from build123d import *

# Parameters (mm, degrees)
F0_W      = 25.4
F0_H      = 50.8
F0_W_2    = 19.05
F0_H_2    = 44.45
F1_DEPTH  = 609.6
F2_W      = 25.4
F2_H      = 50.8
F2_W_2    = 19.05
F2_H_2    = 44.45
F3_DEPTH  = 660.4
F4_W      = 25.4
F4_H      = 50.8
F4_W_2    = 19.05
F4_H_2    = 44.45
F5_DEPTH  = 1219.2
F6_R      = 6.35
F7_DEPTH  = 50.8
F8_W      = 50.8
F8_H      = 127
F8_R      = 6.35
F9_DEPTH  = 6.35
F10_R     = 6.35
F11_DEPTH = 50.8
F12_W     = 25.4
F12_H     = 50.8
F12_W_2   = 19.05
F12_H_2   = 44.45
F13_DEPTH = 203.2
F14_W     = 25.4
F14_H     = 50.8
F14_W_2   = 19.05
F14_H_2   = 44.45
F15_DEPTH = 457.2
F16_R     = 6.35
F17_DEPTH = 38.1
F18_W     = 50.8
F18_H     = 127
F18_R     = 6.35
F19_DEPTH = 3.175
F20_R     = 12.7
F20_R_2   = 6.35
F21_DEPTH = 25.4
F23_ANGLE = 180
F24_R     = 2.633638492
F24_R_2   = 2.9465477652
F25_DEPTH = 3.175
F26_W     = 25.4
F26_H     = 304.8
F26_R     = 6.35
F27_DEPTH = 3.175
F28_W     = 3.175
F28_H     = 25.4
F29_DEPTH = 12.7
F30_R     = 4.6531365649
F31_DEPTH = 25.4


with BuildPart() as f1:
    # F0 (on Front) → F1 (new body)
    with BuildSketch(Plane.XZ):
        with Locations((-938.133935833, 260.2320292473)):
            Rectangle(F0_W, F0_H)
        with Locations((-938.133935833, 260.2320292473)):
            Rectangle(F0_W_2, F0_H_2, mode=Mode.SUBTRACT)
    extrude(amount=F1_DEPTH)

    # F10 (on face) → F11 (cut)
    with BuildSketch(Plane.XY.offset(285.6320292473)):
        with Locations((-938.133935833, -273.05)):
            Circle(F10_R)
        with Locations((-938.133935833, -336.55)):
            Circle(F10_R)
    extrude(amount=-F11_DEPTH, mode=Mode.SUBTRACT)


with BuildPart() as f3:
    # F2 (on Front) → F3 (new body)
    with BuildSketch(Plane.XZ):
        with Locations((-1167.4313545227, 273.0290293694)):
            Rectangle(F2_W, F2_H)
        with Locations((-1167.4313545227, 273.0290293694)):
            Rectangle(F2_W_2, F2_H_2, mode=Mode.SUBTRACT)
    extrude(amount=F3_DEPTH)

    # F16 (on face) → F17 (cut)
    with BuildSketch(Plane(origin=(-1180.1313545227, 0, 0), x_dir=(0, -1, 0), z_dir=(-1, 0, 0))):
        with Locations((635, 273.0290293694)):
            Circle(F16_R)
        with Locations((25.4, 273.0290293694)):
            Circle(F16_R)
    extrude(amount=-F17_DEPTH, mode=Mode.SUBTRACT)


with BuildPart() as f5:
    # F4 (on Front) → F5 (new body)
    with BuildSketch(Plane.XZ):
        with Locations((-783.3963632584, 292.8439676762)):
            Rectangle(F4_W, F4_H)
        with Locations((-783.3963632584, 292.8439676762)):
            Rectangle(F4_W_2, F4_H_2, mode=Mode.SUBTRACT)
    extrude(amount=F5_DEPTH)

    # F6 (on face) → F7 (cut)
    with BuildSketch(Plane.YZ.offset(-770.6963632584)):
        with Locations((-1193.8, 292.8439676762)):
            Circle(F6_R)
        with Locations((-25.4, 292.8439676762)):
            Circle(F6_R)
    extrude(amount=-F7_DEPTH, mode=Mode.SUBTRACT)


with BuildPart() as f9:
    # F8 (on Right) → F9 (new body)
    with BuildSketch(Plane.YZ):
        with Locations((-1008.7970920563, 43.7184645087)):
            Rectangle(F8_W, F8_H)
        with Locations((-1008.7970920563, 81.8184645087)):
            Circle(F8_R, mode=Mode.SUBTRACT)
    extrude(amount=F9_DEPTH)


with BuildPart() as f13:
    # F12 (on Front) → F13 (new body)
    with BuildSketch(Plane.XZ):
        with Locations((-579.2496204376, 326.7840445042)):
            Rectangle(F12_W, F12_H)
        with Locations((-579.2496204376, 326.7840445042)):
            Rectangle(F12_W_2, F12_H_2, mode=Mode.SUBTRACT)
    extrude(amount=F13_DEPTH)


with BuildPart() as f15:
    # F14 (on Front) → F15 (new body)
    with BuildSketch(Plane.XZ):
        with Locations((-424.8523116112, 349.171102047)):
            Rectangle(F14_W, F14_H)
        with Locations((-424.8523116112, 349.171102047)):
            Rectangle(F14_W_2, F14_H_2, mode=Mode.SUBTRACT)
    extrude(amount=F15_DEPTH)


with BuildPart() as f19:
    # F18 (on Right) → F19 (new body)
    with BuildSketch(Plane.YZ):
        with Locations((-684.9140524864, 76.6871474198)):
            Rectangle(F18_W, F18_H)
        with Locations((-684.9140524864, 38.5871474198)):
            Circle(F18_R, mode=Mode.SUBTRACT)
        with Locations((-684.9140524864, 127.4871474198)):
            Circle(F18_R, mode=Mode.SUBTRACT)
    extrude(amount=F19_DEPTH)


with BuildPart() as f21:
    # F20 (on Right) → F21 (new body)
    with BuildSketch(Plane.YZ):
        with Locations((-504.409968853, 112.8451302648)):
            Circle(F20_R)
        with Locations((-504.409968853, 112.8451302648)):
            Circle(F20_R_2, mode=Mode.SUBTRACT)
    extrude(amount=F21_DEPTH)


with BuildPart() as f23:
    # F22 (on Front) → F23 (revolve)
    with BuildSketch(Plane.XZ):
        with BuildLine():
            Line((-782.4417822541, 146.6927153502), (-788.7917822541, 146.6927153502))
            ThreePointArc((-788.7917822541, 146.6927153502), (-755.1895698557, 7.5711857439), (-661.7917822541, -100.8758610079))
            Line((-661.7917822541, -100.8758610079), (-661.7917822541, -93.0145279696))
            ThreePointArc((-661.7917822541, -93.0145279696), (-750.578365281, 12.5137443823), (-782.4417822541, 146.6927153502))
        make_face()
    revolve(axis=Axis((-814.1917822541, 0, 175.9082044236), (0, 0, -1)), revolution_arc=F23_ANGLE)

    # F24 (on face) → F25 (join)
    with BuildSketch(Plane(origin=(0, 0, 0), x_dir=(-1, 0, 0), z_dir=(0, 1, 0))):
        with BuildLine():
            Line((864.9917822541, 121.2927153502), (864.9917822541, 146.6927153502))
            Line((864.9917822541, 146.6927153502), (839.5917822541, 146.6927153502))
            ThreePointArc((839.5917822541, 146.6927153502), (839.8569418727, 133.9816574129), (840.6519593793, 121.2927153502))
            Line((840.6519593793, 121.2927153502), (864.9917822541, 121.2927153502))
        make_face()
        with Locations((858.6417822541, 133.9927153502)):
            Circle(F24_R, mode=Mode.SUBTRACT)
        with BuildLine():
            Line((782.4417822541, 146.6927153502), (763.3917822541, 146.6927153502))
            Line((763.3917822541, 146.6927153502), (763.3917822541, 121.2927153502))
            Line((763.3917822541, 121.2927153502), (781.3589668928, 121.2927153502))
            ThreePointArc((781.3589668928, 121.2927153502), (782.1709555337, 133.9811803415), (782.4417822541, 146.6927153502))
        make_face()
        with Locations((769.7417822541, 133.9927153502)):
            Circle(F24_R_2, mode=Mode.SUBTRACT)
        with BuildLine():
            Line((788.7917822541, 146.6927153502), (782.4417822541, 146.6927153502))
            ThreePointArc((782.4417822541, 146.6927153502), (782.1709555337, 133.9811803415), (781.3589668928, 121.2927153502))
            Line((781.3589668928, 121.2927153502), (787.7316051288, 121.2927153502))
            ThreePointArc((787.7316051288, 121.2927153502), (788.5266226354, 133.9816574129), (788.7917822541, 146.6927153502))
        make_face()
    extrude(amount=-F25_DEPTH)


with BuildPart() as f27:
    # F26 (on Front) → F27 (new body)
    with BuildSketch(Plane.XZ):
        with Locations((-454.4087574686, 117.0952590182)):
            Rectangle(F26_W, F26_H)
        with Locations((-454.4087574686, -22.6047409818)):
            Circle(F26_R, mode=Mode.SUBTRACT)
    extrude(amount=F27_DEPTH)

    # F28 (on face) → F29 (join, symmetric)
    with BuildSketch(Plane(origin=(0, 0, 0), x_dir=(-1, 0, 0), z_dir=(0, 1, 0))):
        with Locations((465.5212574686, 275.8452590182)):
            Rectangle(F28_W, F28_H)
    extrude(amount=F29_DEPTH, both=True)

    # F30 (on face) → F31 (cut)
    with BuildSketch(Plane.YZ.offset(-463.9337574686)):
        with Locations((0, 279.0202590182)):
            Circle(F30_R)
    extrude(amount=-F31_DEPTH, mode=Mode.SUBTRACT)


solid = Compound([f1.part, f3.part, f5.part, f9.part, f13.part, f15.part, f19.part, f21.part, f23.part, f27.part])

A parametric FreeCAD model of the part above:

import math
import FreeCAD as App
import Part
import Sketcher

V = App.Vector
Q = App.Units.Quantity

doc = App.newDocument("Part")
body = doc.addObject("PartDesign::Body", "Body")

sketch1 = doc.addObject("Sketcher::SketchObject", "Sketch")
body.addObject(sketch1)
sketch1.AttachmentSupport = (doc.XZ_Plane, [""])
sketch1.MapMode = "FlatFace"
sketch1.addGeometry(Part.LineSegment(V(-950.833936, 285.632029, 0), V(-950.833936, 234.832029, 0)), False)
sketch1.addGeometry(Part.LineSegment(V(-950.833936, 234.832029, 0), V(-925.433936, 234.832029, 0)), False)
sketch1.addGeometry(Part.LineSegment(V(-925.433936, 234.832029, 0), V(-925.433936, 285.632029, 0)), False)
sketch1.addGeometry(Part.LineSegment(V(-925.433936, 285.632029, 0), V(-950.833936, 285.632029, 0)), False)
sketch1.addGeometry(Part.LineSegment(V(-928.608936, 238.007029, 0), V(-947.658936, 238.007029, 0)), False)
sketch1.addGeometry(Part.LineSegment(V(-947.658936, 238.007029, 0), V(-947.658936, 282.457029, 0)), False)
sketch1.addGeometry(Part.LineSegment(V(-947.658936, 282.457029, 0), V(-928.608936, 282.457029, 0)), False)
sketch1.addGeometry(Part.LineSegment(V(-928.608936, 282.457029, 0), V(-928.608936, 238.007029, 0)), False)
sketch1.addConstraint(Sketcher.Constraint("Coincident", 0, 2, 1, 1))
sketch1.addConstraint(Sketcher.Constraint("Coincident", 1, 2, 2, 1))
sketch1.addConstraint(Sketcher.Constraint("Coincident", 2, 2, 3, 1))
sketch1.addConstraint(Sketcher.Constraint("Coincident", 3, 2, 0, 1))
sketch1.addConstraint(Sketcher.Constraint("Coincident", 4, 2, 5, 1))
sketch1.addConstraint(Sketcher.Constraint("Coincident", 5, 2, 6, 1))
sketch1.addConstraint(Sketcher.Constraint("Coincident", 6, 2, 7, 1))
sketch1.addConstraint(Sketcher.Constraint("Coincident", 7, 2, 4, 1))
sketch1.addConstraint(Sketcher.Constraint("Vertical", 0))
sketch1.addConstraint(Sketcher.Constraint("Horizontal", 1))
sketch1.addConstraint(Sketcher.Constraint("Vertical", 2))
sketch1.addConstraint(Sketcher.Constraint("Horizontal", 3))
sketch1.addConstraint(Sketcher.Constraint("Horizontal", 4))
sketch1.addConstraint(Sketcher.Constraint("Vertical", 5))
sketch1.addConstraint(Sketcher.Constraint("Horizontal", 6))
sketch1.addConstraint(Sketcher.Constraint("Vertical", 7))
sketch1.addConstraint(Sketcher.Constraint("DistanceX", 1, 1, 1, 2, Q("1 in")))
sketch1.addConstraint(Sketcher.Constraint("DistanceY", 0, 2, 0, 1, Q("2 in")))
sketch1.addConstraint(Sketcher.Constraint("DistanceX", 4, 2, 4, 1, Q("0.75 in")))
sketch1.addConstraint(Sketcher.Constraint("DistanceY", 5, 1, 5, 2, Q("1.75 in")))
sketch1.addConstraint(Sketcher.Constraint("DistanceX", 0, 2, 4, 2, Q("0.125 in")))
sketch1.addConstraint(Sketcher.Constraint("DistanceY", 0, 2, 4, 2, Q("0.125 in")))
sketch1.addConstraint(Sketcher.Constraint("DistanceY", -1, 1, 0, 2, 234.832029))
sketch1.addConstraint(Sketcher.Constraint("DistanceX", 0, 2, -1, 1, 950.833936))
pad1 = doc.addObject("PartDesign::Pad", "Pad")
body.addObject(pad1)
pad1.Profile = sketch1
pad1.Length = Q("24 in")

sketch2 = doc.addObject("Sketcher::SketchObject", "Sketch001")
body.addObject(sketch2)
sketch2.AttachmentSupport = (doc.XY_Plane, [""])
sketch2.MapMode = "FlatFace"
sketch2.AttachmentOffset = App.Placement(V(0, 0, 285.632029), App.Rotation())
sketch2.addGeometry(Part.Circle(V(-938.133936, -273.05, 0), V(0, 0, 1), 6.35), False)
sketch2.addGeometry(Part.Circle(V(-938.133936, -336.55, 0), V(0, 0, 1), 6.35), False)
sketch2.addConstraint(Sketcher.Constraint("Equal", 0, 1))
sketch2.addConstraint(Sketcher.Constraint("Vertical", 0, 3, 1, 3))
sketch2.addConstraint(Sketcher.Constraint("Diameter", 0, Q("0.5 in")))
sketch2.addConstraint(Sketcher.Constraint("DistanceY", 1, 3, 0, 3, Q("2.5 in")))
sketch2.addConstraint(Sketcher.Constraint("DistanceY", 0, 3, -1, 1, Q("10.75 in")))
sketch2.addConstraint(Sketcher.Constraint("DistanceX", 0, 3, -1, 1, 938.133936))
pocket1 = doc.addObject("PartDesign::Pocket", "Pocket")
body.addObject(pocket1)
pocket1.Profile = sketch2
pocket1.Length = Q("2 in")
body2 = doc.addObject("PartDesign::Body", "Body001")

sketch3 = doc.addObject("Sketcher::SketchObject", "Sketch002")
body2.addObject(sketch3)
sketch3.AttachmentSupport = (doc.getObject("XZ_Plane001"), [""])
sketch3.MapMode = "FlatFace"
sketch3.addGeometry(Part.LineSegment(V(-1180.131355, 298.429029, 0), V(-1180.131355, 247.629029, 0)), False)
sketch3.addGeometry(Part.LineSegment(V(-1180.131355, 247.629029, 0), V(-1154.731355, 247.629029, 0)), False)
sketch3.addGeometry(Part.LineSegment(V(-1154.731355, 247.629029, 0), V(-1154.731355, 298.429029, 0)), False)
sketch3.addGeometry(Part.LineSegment(V(-1154.731355, 298.429029, 0), V(-1180.131355, 298.429029, 0)), False)
sketch3.addGeometry(Part.LineSegment(V(-1157.906355, 250.804029, 0), V(-1176.956355, 250.804029, 0)), False)
sketch3.addGeometry(Part.LineSegment(V(-1176.956355, 250.804029, 0), V(-1176.956355, 295.254029, 0)), False)
sketch3.addGeometry(Part.LineSegment(V(-1176.956355, 295.254029, 0), V(-1157.906355, 295.254029, 0)), False)
sketch3.addGeometry(Part.LineSegment(V(-1157.906355, 295.254029, 0), V(-1157.906355, 250.804029, 0)), False)
sketch3.addConstraint(Sketcher.Constraint("Coincident", 0, 2, 1, 1))
sketch3.addConstraint(Sketcher.Constraint("Coincident", 1, 2, 2, 1))
sketch3.addConstraint(Sketcher.Constraint("Coincident", 2, 2, 3, 1))
sketch3.addConstraint(Sketcher.Constraint("Coincident", 3, 2, 0, 1))
sketch3.addConstraint(Sketcher.Constraint("Coincident", 4, 2, 5, 1))
sketch3.addConstraint(Sketcher.Constraint("Coincident", 5, 2, 6, 1))
sketch3.addConstraint(Sketcher.Constraint("Coincident", 6, 2, 7, 1))
sketch3.addConstraint(Sketcher.Constraint("Coincident", 7, 2, 4, 1))
sketch3.addConstraint(Sketcher.Constraint("Vertical", 0))
sketch3.addConstraint(Sketcher.Constraint("Horizontal", 1))
sketch3.addConstraint(Sketcher.Constraint("Vertical", 2))
sketch3.addConstraint(Sketcher.Constraint("Horizontal", 3))
sketch3.addConstraint(Sketcher.Constraint("Horizontal", 4))
sketch3.addConstraint(Sketcher.Constraint("Vertical", 5))
sketch3.addConstraint(Sketcher.Constraint("Horizontal", 6))
sketch3.addConstraint(Sketcher.Constraint("Vertical", 7))
sketch3.addConstraint(Sketcher.Constraint("DistanceX", 1, 1, 1, 2, Q("1 in")))
sketch3.addConstraint(Sketcher.Constraint("DistanceY", 0, 2, 0, 1, Q("2 in")))
sketch3.addConstraint(Sketcher.Constraint("DistanceX", 4, 2, 4, 1, Q("0.75 in")))
sketch3.addConstraint(Sketcher.Constraint("DistanceY", 5, 1, 5, 2, Q("1.75 in")))
sketch3.addConstraint(Sketcher.Constraint("DistanceX", 0, 2, 4, 2, Q("0.125 in")))
sketch3.addConstraint(Sketcher.Constraint("DistanceY", 0, 2, 4, 2, Q("0.125 in")))
sketch3.addConstraint(Sketcher.Constraint("DistanceY", -1, 1, 0, 2, 247.629029))
sketch3.addConstraint(Sketcher.Constraint("DistanceX", 0, 2, -1, 1, 1180.131355))
pad2 = doc.addObject("PartDesign::Pad", "Pad001")
body2.addObject(pad2)
pad2.Profile = sketch3
pad2.Length = Q("26 in")

sketch4 = doc.addObject("Sketcher::SketchObject", "Sketch003")
body2.addObject(sketch4)
sketch4.AttachmentSupport = (doc.getObject("YZ_Plane001"), [""])
sketch4.MapMode = "FlatFace"
sketch4.AttachmentOffset = App.Placement(V(0, 0, -1180.131355), App.Rotation())
sketch4.addGeometry(Part.Circle(V(-635, 273.029029, 0), V(0, 0, 1), 6.35), False)
sketch4.addGeometry(Part.Circle(V(-25.4, 273.029029, 0), V(0, 0, 1), 6.35), False)
sketch4.addConstraint(Sketcher.Constraint("Equal", 0, 1))
sketch4.addConstraint(Sketcher.Constraint("Horizontal", 0, 3, 1, 3))
sketch4.addConstraint(Sketcher.Constraint("Diameter", 0, Q("0.5 in")))
sketch4.addConstraint(Sketcher.Constraint("DistanceX", 0, 3, -1, 1, Q("25 in")))
sketch4.addConstraint(Sketcher.Constraint("DistanceX", 1, 3, -1, 1, Q("1 in")))
sketch4.addConstraint(Sketcher.Constraint("DistanceY", -1, 1, 0, 3, 273.029029))
pocket2 = doc.addObject("PartDesign::Pocket", "Pocket001")
body2.addObject(pocket2)
pocket2.Profile = sketch4
pocket2.Length = Q("1.5 in")
pocket2.Reversed = True
body3 = doc.addObject("PartDesign::Body", "Body002")

sketch5 = doc.addObject("Sketcher::SketchObject", "Sketch004")
body3.addObject(sketch5)
sketch5.AttachmentSupport = (doc.getObject("XZ_Plane002"), [""])
sketch5.MapMode = "FlatFace"
sketch5.addGeometry(Part.LineSegment(V(-796.096363, 318.243968, 0), V(-796.096363, 267.443968, 0)), False)
sketch5.addGeometry(Part.LineSegment(V(-796.096363, 267.443968, 0), V(-770.696363, 267.443968, 0)), False)
sketch5.addGeometry(Part.LineSegment(V(-770.696363, 267.443968, 0), V(-770.696363, 318.243968, 0)), False)
sketch5.addGeometry(Part.LineSegment(V(-770.696363, 318.243968, 0), V(-796.096363, 318.243968, 0)), False)
sketch5.addGeometry(Part.LineSegment(V(-773.871363, 270.618968, 0), V(-792.921363, 270.618968, 0)), False)
sketch5.addGeometry(Part.LineSegment(V(-792.921363, 270.618968, 0), V(-792.921363, 315.068968, 0)), False)
sketch5.addGeometry(Part.LineSegment(V(-792.921363, 315.068968, 0), V(-773.871363, 315.068968, 0)), False)
sketch5.addGeometry(Part.LineSegment(V(-773.871363, 315.068968, 0), V(-773.871363, 270.618968, 0)), False)
sketch5.addConstraint(Sketcher.Constraint("Coincident", 0, 2, 1, 1))
sketch5.addConstraint(Sketcher.Constraint("Coincident", 1, 2, 2, 1))
sketch5.addConstraint(Sketcher.Constraint("Coincident", 2, 2, 3, 1))
sketch5.addConstraint(Sketcher.Constraint("Coincident", 3, 2, 0, 1))
sketch5.addConstraint(Sketcher.Constraint("Coincident", 4, 2, 5, 1))
sketch5.addConstraint(Sketcher.Constraint("Coincident", 5, 2, 6, 1))
sketch5.addConstraint(Sketcher.Constraint("Coincident", 6, 2, 7, 1))
sketch5.addConstraint(Sketcher.Constraint("Coincident", 7, 2, 4, 1))
sketch5.addConstraint(Sketcher.Constraint("Vertical", 0))
sketch5.addConstraint(Sketcher.Constraint("Horizontal", 1))
sketch5.addConstraint(Sketcher.Constraint("Vertical", 2))
sketch5.addConstraint(Sketcher.Constraint("Horizontal", 3))
sketch5.addConstraint(Sketcher.Constraint("Horizontal", 4))
sketch5.addConstraint(Sketcher.Constraint("Vertical", 5))
sketch5.addConstraint(Sketcher.Constraint("Horizontal", 6))
sketch5.addConstraint(Sketcher.Constraint("Vertical", 7))
sketch5.addConstraint(Sketcher.Constraint("DistanceX", 1, 1, 1, 2, Q("1 in")))
sketch5.addConstraint(Sketcher.Constraint("DistanceY", 0, 2, 0, 1, Q("2 in")))
sketch5.addConstraint(Sketcher.Constraint("DistanceX", 4, 2, 4, 1, Q("0.75 in")))
sketch5.addConstraint(Sketcher.Constraint("DistanceY", 5, 1, 5, 2, Q("1.75 in")))
sketch5.addConstraint(Sketcher.Constraint("DistanceX", 0, 2, 4, 2, Q("0.125 in")))
sketch5.addConstraint(Sketcher.Constraint("DistanceY", 0, 2, 4, 2, Q("0.125 in")))
sketch5.addConstraint(Sketcher.Constraint("DistanceX", 0, 2, -1, 1, 796.096363))
sketch5.addConstraint(Sketcher.Constraint("DistanceY", -1, 1, 0, 2, 267.443968))
pad3 = doc.addObject("PartDesign::Pad", "Pad002")
body3.addObject(pad3)
pad3.Profile = sketch5
pad3.Length = Q("48 in")

sketch6 = doc.addObject("Sketcher::SketchObject", "Sketch005")
body3.addObject(sketch6)
sketch6.AttachmentSupport = (doc.getObject("YZ_Plane002"), [""])
sketch6.MapMode = "FlatFace"
sketch6.AttachmentOffset = App.Placement(V(0, 0, -770.696363), App.Rotation())
sketch6.addGeometry(Part.Circle(V(-1193.8, 292.843968, 0), V(0, 0, 1), 6.35), False)
sketch6.addGeometry(Part.Circle(V(-25.4, 292.843968, 0), V(0, 0, 1), 6.35), False)
sketch6.addConstraint(Sketcher.Constraint("Equal", 0, 1))
sketch6.addConstraint(Sketcher.Constraint("Horizontal", 0, 3, 1, 3))
sketch6.addConstraint(Sketcher.Constraint("Diameter", 0, Q("0.5 in")))
sketch6.addConstraint(Sketcher.Constraint("DistanceX", 0, 3, -1, 1, Q("47 in")))
sketch6.addConstraint(Sketcher.Constraint("DistanceX", 1, 3, -1, 1, Q("1 in")))
sketch6.addConstraint(Sketcher.Constraint("DistanceY", -1, 1, 0, 3, 292.843968))
pocket3 = doc.addObject("PartDesign::Pocket", "Pocket002")
body3.addObject(pocket3)
pocket3.Profile = sketch6
pocket3.Length = Q("2 in")
body4 = doc.addObject("PartDesign::Body", "Body003")

sketch7 = doc.addObject("Sketcher::SketchObject", "Sketch006")
body4.addObject(sketch7)
sketch7.AttachmentSupport = (doc.getObject("YZ_Plane003"), [""])
sketch7.MapMode = "FlatFace"
sketch7.addGeometry(Part.LineSegment(V(-1034.197092, 107.218465, 0), V(-1034.197092, -19.781535, 0)), False)
sketch7.addGeometry(Part.LineSegment(V(-1034.197092, -19.781535, 0), V(-983.397092, -19.781535, 0)), False)
sketch7.addGeometry(Part.LineSegment(V(-983.397092, -19.781535, 0), V(-983.397092, 107.218465, 0)), False)
sketch7.addGeometry(Part.LineSegment(V(-983.397092, 107.218465, 0), V(-1034.197092, 107.218465, 0)), False)
sketch7.addGeometry(Part.Circle(V(-1008.797092, 81.818465, 0), V(0, 0, 1), 6.35), False)
sketch7.addConstraint(Sketcher.Constraint("Coincident", 0, 2, 1, 1))
sketch7.addConstraint(Sketcher.Constraint("Coincident", 1, 2, 2, 1))
sketch7.addConstraint(Sketcher.Constraint("Coincident", 2, 2, 3, 1))
sketch7.addConstraint(Sketcher.Constraint("Coincident", 3, 2, 0, 1))
sketch7.addConstraint(Sketcher.Constraint("Vertical", 0))
sketch7.addConstraint(Sketcher.Constraint("Horizontal", 1))
sketch7.addConstraint(Sketcher.Constraint("Vertical", 2))
sketch7.addConstraint(Sketcher.Constraint("Horizontal", 3))
sketch7.addConstraint(Sketcher.Constraint("Diameter", 4, Q("0.5 in")))
sketch7.addConstraint(Sketcher.Constraint("DistanceX", 1, 1, 1, 2, Q("2 in")))
sketch7.addConstraint(Sketcher.Constraint("DistanceY", 0, 2, 0, 1, Q("5 in")))
sketch7.addConstraint(Sketcher.Constraint("DistanceX", 0, 2, 4, 3, Q("1 in")))
sketch7.addConstraint(Sketcher.Constraint("DistanceY", 0, 2, 4, 3, Q("4 in")))
sketch7.addConstraint(Sketcher.Constraint("DistanceX", 4, 3, -1, 1, 1008.797092))
sketch7.addConstraint(Sketcher.Constraint("DistanceY", -1, 1, 4, 3, 81.818465))
pad4 = doc.addObject("PartDesign::Pad", "Pad003")
body4.addObject(pad4)
pad4.Profile = sketch7
pad4.Length = Q("0.25 in")
body5 = doc.addObject("PartDesign::Body", "Body004")

sketch8 = doc.addObject("Sketcher::SketchObject", "Sketch007")
body5.addObject(sketch8)
sketch8.AttachmentSupport = (doc.getObject("XZ_Plane004"), [""])
sketch8.MapMode = "FlatFace"
sketch8.addGeometry(Part.LineSegment(V(-591.94962, 352.184045, 0), V(-591.94962, 301.384045, 0)), False)
sketch8.addGeometry(Part.LineSegment(V(-591.94962, 301.384045, 0), V(-566.54962, 301.384045, 0)), False)
sketch8.addGeometry(Part.LineSegment(V(-566.54962, 301.384045, 0), V(-566.54962, 352.184045, 0)), False)
sketch8.addGeometry(Part.LineSegment(V(-566.54962, 352.184045, 0), V(-591.94962, 352.184045, 0)), False)
sketch8.addGeometry(Part.LineSegment(V(-569.72462, 304.559045, 0), V(-588.77462, 304.559045, 0)), False)
sketch8.addGeometry(Part.LineSegment(V(-588.77462, 304.559045, 0), V(-588.77462, 349.009045, 0)), False)
sketch8.addGeometry(Part.LineSegment(V(-588.77462, 349.009045, 0), V(-569.72462, 349.009045, 0)), False)
sketch8.addGeometry(Part.LineSegment(V(-569.72462, 349.009045, 0), V(-569.72462, 304.559045, 0)), False)
sketch8.addConstraint(Sketcher.Constraint("Coincident", 0, 2, 1, 1))
sketch8.addConstraint(Sketcher.Constraint("Coincident", 1, 2, 2, 1))
sketch8.addConstraint(Sketcher.Constraint("Coincident", 2, 2, 3, 1))
sketch8.addConstraint(Sketcher.Constraint("Coincident", 3, 2, 0, 1))
sketch8.addConstraint(Sketcher.Constraint("Coincident", 4, 2, 5, 1))
sketch8.addConstraint(Sketcher.Constraint("Coincident", 5, 2, 6, 1))
sketch8.addConstraint(Sketcher.Constraint("Coincident", 6, 2, 7, 1))
sketch8.addConstraint(Sketcher.Constraint("Coincident", 7, 2, 4, 1))
sketch8.addConstraint(Sketcher.Constraint("Vertical", 0))
sketch8.addConstraint(Sketcher.Constraint("Horizontal", 1))
sketch8.addConstraint(Sketcher.Constraint("Vertical", 2))
sketch8.addConstraint(Sketcher.Constraint("Horizontal", 3))
sketch8.addConstraint(Sketcher.Constraint("Horizontal", 4))
sketch8.addConstraint(Sketcher.Constraint("Vertical", 5))
sketch8.addConstraint(Sketcher.Constraint("Horizontal", 6))
sketch8.addConstraint(Sketcher.Constraint("Vertical", 7))
sketch8.addConstraint(Sketcher.Constraint("DistanceX", 1, 1, 1, 2, Q("1 in")))
sketch8.addConstraint(Sketcher.Constraint("DistanceY", 0, 2, 0, 1, Q("2 in")))
sketch8.addConstraint(Sketcher.Constraint("DistanceX", 4, 2, 4, 1, Q("0.75 in")))
sketch8.addConstraint(Sketcher.Constraint("DistanceY", 5, 1, 5, 2, Q("1.75 in")))
sketch8.addConstraint(Sketcher.Constraint("DistanceX", 0, 2, 4, 2, Q("0.125 in")))
sketch8.addConstraint(Sketcher.Constraint("DistanceY", 0, 2, 4, 2, Q("0.125 in")))
sketch8.addConstraint(Sketcher.Constraint("DistanceX", 0, 2, -1, 1, 591.94962))
sketch8.addConstraint(Sketcher.Constraint("DistanceY", -1, 1, 0, 2, 301.384045))
pad5 = doc.addObject("PartDesign::Pad", "Pad004")
body5.addObject(pad5)
pad5.Profile = sketch8
pad5.Length = Q("8 in")
body6 = doc.addObject("PartDesign::Body", "Body005")

sketch9 = doc.addObject("Sketcher::SketchObject", "Sketch008")
body6.addObject(sketch9)
sketch9.AttachmentSupport = (doc.getObject("XZ_Plane005"), [""])
sketch9.MapMode = "FlatFace"
sketch9.addGeometry(Part.LineSegment(V(-437.552312, 374.571102, 0), V(-437.552312, 323.771102, 0)), False)
sketch9.addGeometry(Part.LineSegment(V(-437.552312, 323.771102, 0), V(-412.152312, 323.771102, 0)), False)
sketch9.addGeometry(Part.LineSegment(V(-412.152312, 323.771102, 0), V(-412.152312, 374.571102, 0)), False)
sketch9.addGeometry(Part.LineSegment(V(-412.152312, 374.571102, 0), V(-437.552312, 374.571102, 0)), False)
sketch9.addGeometry(Part.LineSegment(V(-415.327312, 326.946102, 0), V(-434.377312, 326.946102, 0)), False)
sketch9.addGeometry(Part.LineSegment(V(-434.377312, 326.946102, 0), V(-434.377312, 371.396102, 0)), False)
sketch9.addGeometry(Part.LineSegment(V(-434.377312, 371.396102, 0), V(-415.327312, 371.396102, 0)), False)
sketch9.addGeometry(Part.LineSegment(V(-415.327312, 371.396102, 0), V(-415.327312, 326.946102, 0)), False)
sketch9.addConstraint(Sketcher.Constraint("Coincident", 0, 2, 1, 1))
sketch9.addConstraint(Sketcher.Constraint("Coincident", 1, 2, 2, 1))
sketch9.addConstraint(Sketcher.Constraint("Coincident", 2, 2, 3, 1))
sketch9.addConstraint(Sketcher.Constraint("Coincident", 3, 2, 0, 1))
sketch9.addConstraint(Sketcher.Constraint("Coincident", 4, 2, 5, 1))
sketch9.addConstraint(Sketcher.Constraint("Coincident", 5, 2, 6, 1))
sketch9.addConstraint(Sketcher.Constraint("Coincident", 6, 2, 7, 1))
sketch9.addConstraint(Sketcher.Constraint("Coincident", 7, 2, 4, 1))
sketch9.addConstraint(Sketcher.Constraint("Vertical", 0))
sketch9.addConstraint(Sketcher.Constraint("Horizontal", 1))
sketch9.addConstraint(Sketcher.Constraint("Vertical", 2))
sketch9.addConstraint(Sketcher.Constraint("Horizontal", 3))
sketch9.addConstraint(Sketcher.Constraint("Horizontal", 4))
sketch9.addConstraint(Sketcher.Constraint("Vertical", 5))
sketch9.addConstraint(Sketcher.Constraint("Horizontal", 6))
sketch9.addConstraint(Sketcher.Constraint("Vertical", 7))
sketch9.addConstraint(Sketcher.Constraint("DistanceX", 1, 1, 1, 2, Q("1 in")))
sketch9.addConstraint(Sketcher.Constraint("DistanceY", 0, 2, 0, 1, Q("2 in")))
sketch9.addConstraint(Sketcher.Constraint("DistanceX", 4, 2, 4, 1, Q("0.75 in")))
sketch9.addConstraint(Sketcher.Constraint("DistanceY", 5, 1, 5, 2, Q("1.75 in")))
sketch9.addConstraint(Sketcher.Constraint("DistanceX", 0, 2, 4, 2, Q("0.125 in")))
sketch9.addConstraint(Sketcher.Constraint("DistanceY", 0, 2, 4, 2, Q("0.125 in")))
sketch9.addConstraint(Sketcher.Constraint("DistanceX", 0, 2, -1, 1, 437.552312))
sketch9.addConstraint(Sketcher.Constraint("DistanceY", -1, 1, 0, 2, 323.771102))
pad6 = doc.addObject("PartDesign::Pad", "Pad005")
body6.addObject(pad6)
pad6.Profile = sketch9
pad6.Length = Q("18 in")
body7 = doc.addObject("PartDesign::Body", "Body006")

sketch10 = doc.addObject("Sketcher::SketchObject", "Sketch009")
body7.addObject(sketch10)
sketch10.AttachmentSupport = (doc.getObject("YZ_Plane006"), [""])
sketch10.MapMode = "FlatFace"
sketch10.addGeometry(Part.LineSegment(V(-710.314052, 140.187147, 0), V(-710.314052, 13.187147, 0)), False)
sketch10.addGeometry(Part.LineSegment(V(-710.314052, 13.187147, 0), V(-659.514052, 13.187147, 0)), False)
sketch10.addGeometry(Part.LineSegment(V(-659.514052, 13.187147, 0), V(-659.514052, 140.187147, 0)), False)
sketch10.addGeometry(Part.LineSegment(V(-659.514052, 140.187147, 0), V(-710.314052, 140.187147, 0)), False)
sketch10.addGeometry(Part.Circle(V(-684.914052, 38.587147, 0), V(0, 0, 1), 6.35), False)
sketch10.addGeometry(Part.Circle(V(-684.914052, 127.487147, 0), V(0, 0, 1), 6.35), False)
sketch10.addConstraint(Sketcher.Constraint("Coincident", 0, 2, 1, 1))
sketch10.addConstraint(Sketcher.Constraint("Coincident", 1, 2, 2, 1))
sketch10.addConstraint(Sketcher.Constraint("Coincident", 2, 2, 3, 1))
sketch10.addConstraint(Sketcher.Constraint("Coincident", 3, 2, 0, 1))
sketch10.addConstraint(Sketcher.Constraint("Vertical", 0))
sketch10.addConstraint(Sketcher.Constraint("Horizontal", 1))
sketch10.addConstraint(Sketcher.Constraint("Vertical", 2))
sketch10.addConstraint(Sketcher.Constraint("Horizontal", 3))
sketch10.addConstraint(Sketcher.Constraint("Equal", 4, 5))
sketch10.addConstraint(Sketcher.Constraint("Vertical", 4, 3, 5, 3))
sketch10.addConstraint(Sketcher.Constraint("Diameter", 4, Q("0.5 in")))
sketch10.addConstraint(Sketcher.Constraint("DistanceX", 1, 1, 1, 2, Q("2 in")))
sketch10.addConstraint(Sketcher.Constraint("DistanceY", 0, 2, 0, 1, Q("5 in")))
sketch10.addConstraint(Sketcher.Constraint("DistanceX", 0, 2, 4, 3, Q("1 in")))
sketch10.addConstraint(Sketcher.Constraint("DistanceY", 0, 2, 4, 3, Q("1 in")))
sketch10.addConstraint(Sketcher.Constraint("DistanceY", 4, 3, 5, 3, Q("3.5 in")))
sketch10.addConstraint(Sketcher.Constraint("DistanceX", 4, 3, -1, 1, 684.914052))
sketch10.addConstraint(Sketcher.Constraint("DistanceY", -1, 1, 4, 3, 38.587147))
pad7 = doc.addObject("PartDesign::Pad", "Pad006")
body7.addObject(pad7)
pad7.Profile = sketch10
pad7.Length = Q("0.125 in")
body8 = doc.addObject("PartDesign::Body", "Body007")

sketch11 = doc.addObject("Sketcher::SketchObject", "Sketch010")
body8.addObject(sketch11)
sketch11.AttachmentSupport = (doc.getObject("YZ_Plane007"), [""])
sketch11.MapMode = "FlatFace"
sketch11.addGeometry(Part.Circle(V(-504.409969, 112.84513, 0), V(0, 0, 1), 12.7), False)
sketch11.addGeometry(Part.Circle(V(-504.409969, 112.84513, 0), V(0, 0, 1), 6.35), False)
sketch11.addConstraint(Sketcher.Constraint("Coincident", 1, 3, 0, 3))
sketch11.addConstraint(Sketcher.Constraint("Diameter", 0, Q("1 in")))
sketch11.addConstraint(Sketcher.Constraint("Diameter", 1, Q("0.5 in")))
sketch11.addConstraint(Sketcher.Constraint("DistanceX", 0, 3, -1, 1, 504.409969))
sketch11.addConstraint(Sketcher.Constraint("DistanceY", -1, 1, 0, 3, 112.84513))
pad8 = doc.addObject("PartDesign::Pad", "Pad007")
body8.addObject(pad8)
pad8.Profile = sketch11
pad8.Length = Q("1 in")
body9 = doc.addObject("PartDesign::Body", "Body008")

sketch12 = doc.addObject("Sketcher::SketchObject", "Sketch011")
body9.addObject(sketch12)
sketch12.AttachmentSupport = (doc.getObject("XZ_Plane008"), [""])
sketch12.MapMode = "FlatFace"
sketch12.addGeometry(Part.LineSegment(V(-782.441782, 146.692715, 0), V(-788.791782, 146.692715, 0)), False)
sketch12.addGeometry(Part.ArcOfCircle(Part.Circle(V(-483.991782, 146.692715, 0), V(0, 0, 1), 304.8), math.radians(180), math.radians(234.314665)), False)
sketch12.addGeometry(Part.LineSegment(V(-661.791782, -100.875861, 0), V(-661.791782, -93.014528, 0)), False)
sketch12.addGeometry(Part.ArcOfCircle(Part.Circle(V(-483.991782, 146.692715, 0), V(0, 0, 1), 298.45), math.radians(180), math.radians(233.434263)), False)
sketch12.addGeometry(Part.LineSegment(V(-814.191782, 146.692715, 0), V(-814.191782, -100.875861, 0)), True)
sketch12.addConstraint(Sketcher.Constraint("Coincident", 0, 2, 1, 1))
sketch12.addConstraint(Sketcher.Constraint("Coincident", 1, 2, 2, 1))
sketch12.addConstraint(Sketcher.Constraint("Coincident", 2, 2, 3, 2))
sketch12.addConstraint(Sketcher.Constraint("Coincident", 3, 1, 0, 1))
sketch12.addConstraint(Sketcher.Constraint("Horizontal", 0))
sketch12.addConstraint(Sketcher.Constraint("Vertical", 2))
sketch12.addConstraint(Sketcher.Constraint("Vertical", 4))
sketch12.addConstraint(Sketcher.Constraint("Coincident", 3, 3, 1, 3))
sketch12.addConstraint(Sketcher.Constraint("Horizontal", 3, 3, 0, 2))
sketch12.addConstraint(Sketcher.Constraint("Horizontal", 3, 1, 4, 1))
sketch12.addConstraint(Sketcher.Constraint("Horizontal", 1, 2, 4, 2))
sketch12.addConstraint(Sketcher.Constraint("Radius", 1, Q("12 in")))
sketch12.addConstraint(Sketcher.Constraint("Radius", 3, Q("11.75 in")))
sketch12.addConstraint(Sketcher.Constraint("DistanceX", 0, 2, 1, 2, Q("5 in")))
sketch12.addConstraint(Sketcher.Constraint("DistanceX", 4, 1, 0, 2, Q("1 in")))
sketch12.addConstraint(Sketcher.Constraint("DistanceY", 4, 2, -1, 1, 100.875861))
sketch12.addConstraint(Sketcher.Constraint("DistanceX", 1, 3, -1, 1, 483.991782))
revolution = doc.addObject("PartDesign::Revolution", "Revolution")
body9.addObject(revolution)
revolution.Profile = sketch12
revolution.ReferenceAxis = (sketch12, ["Axis0"])
revolution.Angle = 180

sketch13 = doc.addObject("Sketcher::SketchObject", "Sketch012")
body9.addObject(sketch13)
sketch13.AttachmentSupport = (doc.getObject("XZ_Plane008"), [""])
sketch13.MapMode = "FlatFace"
sketch13.addGeometry(Part.LineSegment(V(-864.991782, 121.292715, 0), V(-864.991782, 146.692715, 0)), False)
sketch13.addGeometry(Part.LineSegment(V(-864.991782, 146.692715, 0), V(-839.591782, 146.692715, 0)), False)
sketch13.addGeometry(Part.ArcOfCircle(Part.Circle(V(-1144.391782, 146.692715, 0), V(0, 0, 1), 304.8), math.radians(-4.780192), math.radians(0)), False)
sketch13.addGeometry(Part.LineSegment(V(-840.651959, 121.292715, 0), V(-864.991782, 121.292715, 0)), False)
sketch13.addGeometry(Part.Circle(V(-858.641782, 133.992715, 0), V(0, 0, 1), 2.633638), False)
sketch13.addGeometry(Part.LineSegment(V(-763.391782, 146.692715, 0), V(-763.391782, 121.292715, 0)), False)
sketch13.addGeometry(Part.LineSegment(V(-763.391782, 121.292715, 0), V(-787.731605, 121.292715, 0)), False)
sketch13.addGeometry(Part.ArcOfCircle(Part.Circle(V(-483.991782, 146.692715, 0), V(0, 0, 1), 304.8), math.radians(-180), math.radians(-175.219808)), False)
sketch13.addGeometry(Part.LineSegment(V(-788.791782, 146.692715, 0), V(-763.391782, 146.692715, 0)), False)
sketch13.addGeometry(Part.Circle(V(-769.741782, 133.992715, 0), V(0, 0, 1), 2.946548), False)
sketch13.addConstraint(Sketcher.Constraint("Coincident", 0, 2, 1, 1))
sketch13.addConstraint(Sketcher.Constraint("Coincident", 1, 2, 2, 2))
sketch13.addConstraint(Sketcher.Constraint("Coincident", 2, 1, 3, 1))
sketch13.addConstraint(Sketcher.Constraint("Coincident", 3, 2, 0, 1))
sketch13.addConstraint(Sketcher.Constraint("Coincident", 5, 2, 6, 1))
sketch13.addConstraint(Sketcher.Constraint("Coincident", 6, 2, 7, 2))
sketch13.addConstraint(Sketcher.Constraint("Coincident", 7, 1, 8, 1))
sketch13.addConstraint(Sketcher.Constraint("Coincident", 8, 2, 5, 1))
sketch13.addConstraint(Sketcher.Constraint("Vertical", 0))
sketch13.addConstraint(Sketcher.Constraint("Horizontal", 1))
sketch13.addConstraint(Sketcher.Constraint("Horizontal", 3))
sketch13.addConstraint(Sketcher.Constraint("Vertical", 5))
sketch13.addConstraint(Sketcher.Constraint("Horizontal", 6))
sketch13.addConstraint(Sketcher.Constraint("Horizontal", 8))
sketch13.addConstraint(Sketcher.Constraint("Equal", 2, 7))
sketch13.addConstraint(Sketcher.Constraint("Horizontal", 2, 3, 7, 3))
sketch13.addConstraint(Sketcher.Constraint("Horizontal", 4, 3, 9, 3))
sketch13.addConstraint(Sketcher.Constraint("Horizontal", 7, 3, 0, 2))
sketch13.addConstraint(Sketcher.Constraint("Horizontal", 3, 2, 5, 2))
sketch13.addConstraint(Sketcher.Constraint("Horizontal", 1, 2, 7, 1))
sketch13.addConstraint(Sketcher.Constraint("Equal", 3, 6))
sketch13.addConstraint(Sketcher.Constraint("Equal", 8, 0))
sketch13.addConstraint(Sketcher.Constraint("Radius", 2, Q("12 in")))
sketch13.addConstraint(Sketcher.Constraint("DistanceX", 1, 1, 1, 2, Q("1 in")))
sketch13.addConstraint(Sketcher.Constraint("DistanceX", 2, 3, 7, 3, Q("26 in")))
sketch13.addConstraint(Sketcher.Constraint("DistanceY", 4, 3, 2, 3, Q("0.5 in")))
sketch13.addConstraint(Sketcher.Constraint("DistanceX", 4, 3, 9, 3, Q("3.5 in")))
sketch13.addConstraint(Sketcher.Constraint("DistanceX", 2, 3, 4, 3, Q("11.25 in")))
sketch13.addConstraint(Sketcher.Constraint("Diameter", 4, 5.267277))
sketch13.addConstraint(Sketcher.Constraint("Diameter", 9, 5.893096))
sketch13.addConstraint(Sketcher.Constraint("DistanceX", 2, 1, -1, 1, 840.651959))
sketch13.addConstraint(Sketcher.Constraint("DistanceY", -1, 1, 2, 3, 146.692715))
pad9 = doc.addObject("PartDesign::Pad", "Pad008")
body9.addObject(pad9)
pad9.Profile = sketch13
pad9.Length = Q("0.125 in")
body10 = doc.addObject("PartDesign::Body", "Body009")

sketch14 = doc.addObject("Sketcher::SketchObject", "Sketch013")
body10.addObject(sketch14)
sketch14.AttachmentSupport = (doc.getObject("XZ_Plane009"), [""])
sketch14.MapMode = "FlatFace"
sketch14.addGeometry(Part.LineSegment(V(-467.108757, 269.495259, 0), V(-467.108757, -35.304741, 0)), False)
sketch14.addGeometry(Part.LineSegment(V(-467.108757, -35.304741, 0), V(-441.708757, -35.304741, 0)), False)
sketch14.addGeometry(Part.LineSegment(V(-441.708757, -35.304741, 0), V(-441.708757, 269.495259, 0)), False)
sketch14.addGeometry(Part.LineSegment(V(-441.708757, 269.495259, 0), V(-467.108757, 269.495259, 0)), False)
sketch14.addGeometry(Part.Circle(V(-454.408757, -22.604741, 0), V(0, 0, 1), 6.35), False)
sketch14.addConstraint(Sketcher.Constraint("Coincident", 0, 2, 1, 1))
sketch14.addConstraint(Sketcher.Constraint("Coincident", 1, 2, 2, 1))
sketch14.addConstraint(Sketcher.Constraint("Coincident", 2, 2, 3, 1))
sketch14.addConstraint(Sketcher.Constraint("Coincident", 3, 2, 0, 1))
sketch14.addConstraint(Sketcher.Constraint("Vertical", 0))
sketch14.addConstraint(Sketcher.Constraint("Horizontal", 1))
sketch14.addConstraint(Sketcher.Constraint("Vertical", 2))
sketch14.addConstraint(Sketcher.Constraint("Horizontal", 3))
sketch14.addConstraint(Sketcher.Constraint("Diameter", 4, Q("0.5 in")))
sketch14.addConstraint(Sketcher.Constraint("DistanceX", 1, 1, 1, 2, Q("1 in")))
sketch14.addConstraint(Sketcher.Constraint("DistanceY", 0, 2, 0, 1, Q("12 in")))
sketch14.addConstraint(Sketcher.Constraint("DistanceX", 0, 2, 4, 3, Q("0.5 in")))
sketch14.addConstraint(Sketcher.Constraint("DistanceY", 0, 2, 4, 3, Q("0.5 in")))
sketch14.addConstraint(Sketcher.Constraint("DistanceY", 4, 3, -1, 1, 22.604741))
sketch14.addConstraint(Sketcher.Constraint("DistanceX", 4, 3, -1, 1, 454.408757))
pad10 = doc.addObject("PartDesign::Pad", "Pad009")
body10.addObject(pad10)
pad10.Profile = sketch14
pad10.Length = Q("0.125 in")

sketch15 = doc.addObject("Sketcher::SketchObject", "Sketch014")
body10.addObject(sketch15)
sketch15.AttachmentSupport = (doc.getObject("XZ_Plane009"), [""])
sketch15.MapMode = "FlatFace"
sketch15.addGeometry(Part.LineSegment(V(-463.933757, 288.545259, 0), V(-463.933757, 263.145259, 0)), False)
sketch15.addGeometry(Part.LineSegment(V(-463.933757, 263.145259, 0), V(-467.108757, 263.145259, 0)), False)
sketch15.addGeometry(Part.LineSegment(V(-467.108757, 263.145259, 0), V(-467.108757, 288.545259, 0)), False)
sketch15.addGeometry(Part.LineSegment(V(-467.108757, 288.545259, 0), V(-463.933757, 288.545259, 0)), False)
sketch15.addConstraint(Sketcher.Constraint("Coincident", 0, 2, 1, 1))
sketch15.addConstraint(Sketcher.Constraint("Coincident", 1, 2, 2, 1))
sketch15.addConstraint(Sketcher.Constraint("Coincident", 2, 2, 3, 1))
sketch15.addConstraint(Sketcher.Constraint("Coincident", 3, 2, 0, 1))
sketch15.addConstraint(Sketcher.Constraint("Vertical", 0))
sketch15.addConstraint(Sketcher.Constraint("Horizontal", 1))
sketch15.addConstraint(Sketcher.Constraint("Vertical", 2))
sketch15.addConstraint(Sketcher.Constraint("Horizontal", 3))
sketch15.addConstraint(Sketcher.Constraint("DistanceY", 0, 2, 0, 1, Q("1 in")))
sketch15.addConstraint(Sketcher.Constraint("DistanceX", 1, 2, 1, 1, Q("0.125 in")))
sketch15.addConstraint(Sketcher.Constraint("DistanceY", -1, 1, 0, 2, 263.145259))
sketch15.addConstraint(Sketcher.Constraint("DistanceX", 0, 2, -1, 1, 463.933757))
pad11 = doc.addObject("PartDesign::Pad", "Pad010")
body10.addObject(pad11)
pad11.Profile = sketch15
pad11.Length = Q("1 in")
pad11.Midplane = True

sketch16 = doc.addObject("Sketcher::SketchObject", "Sketch015")
body10.addObject(sketch16)
sketch16.AttachmentSupport = (doc.getObject("YZ_Plane009"), [""])
sketch16.MapMode = "FlatFace"
sketch16.AttachmentOffset = App.Placement(V(0, 0, -463.933757), App.Rotation())
sketch16.addGeometry(Part.Circle(V(0, 279.020259, 0), V(0, 0, 1), 4.653137), False)
sketch16.addConstraint(Sketcher.Constraint("PointOnObject", 0, 3, -2))
sketch16.addConstraint(Sketcher.Constraint("Diameter", 0, 9.306273))
sketch16.addConstraint(Sketcher.Constraint("DistanceY", -1, 1, 0, 3, 279.020259))
pocket4 = doc.addObject("PartDesign::Pocket", "Pocket003")
body10.addObject(pocket4)
pocket4.Profile = sketch16
pocket4.Length = Q("1 in")

doc.recompute()
